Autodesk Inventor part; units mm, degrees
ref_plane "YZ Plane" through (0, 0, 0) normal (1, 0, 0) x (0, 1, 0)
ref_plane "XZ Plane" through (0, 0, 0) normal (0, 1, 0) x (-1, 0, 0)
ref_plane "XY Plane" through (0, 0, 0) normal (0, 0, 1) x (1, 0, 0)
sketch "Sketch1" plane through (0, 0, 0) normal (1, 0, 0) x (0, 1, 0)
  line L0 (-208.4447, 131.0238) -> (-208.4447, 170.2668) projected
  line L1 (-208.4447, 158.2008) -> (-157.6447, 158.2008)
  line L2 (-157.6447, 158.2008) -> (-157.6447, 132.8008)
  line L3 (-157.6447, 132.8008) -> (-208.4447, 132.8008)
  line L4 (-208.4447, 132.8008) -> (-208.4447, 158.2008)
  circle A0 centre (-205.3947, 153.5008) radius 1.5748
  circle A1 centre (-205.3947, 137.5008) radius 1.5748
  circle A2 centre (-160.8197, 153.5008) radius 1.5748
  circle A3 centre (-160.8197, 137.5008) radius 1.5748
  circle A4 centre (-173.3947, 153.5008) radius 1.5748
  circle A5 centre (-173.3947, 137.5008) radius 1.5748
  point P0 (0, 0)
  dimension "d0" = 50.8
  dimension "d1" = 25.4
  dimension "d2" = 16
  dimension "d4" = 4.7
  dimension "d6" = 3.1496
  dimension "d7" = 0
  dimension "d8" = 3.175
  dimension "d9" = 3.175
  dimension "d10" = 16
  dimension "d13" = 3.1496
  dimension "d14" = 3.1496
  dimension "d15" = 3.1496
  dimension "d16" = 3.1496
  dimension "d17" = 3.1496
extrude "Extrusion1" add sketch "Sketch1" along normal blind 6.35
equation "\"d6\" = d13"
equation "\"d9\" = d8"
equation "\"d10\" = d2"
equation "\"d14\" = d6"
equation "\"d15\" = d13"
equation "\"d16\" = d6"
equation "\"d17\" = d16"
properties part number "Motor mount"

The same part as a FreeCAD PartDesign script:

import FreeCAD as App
import Part
import Sketcher
Q = App.Units.Quantity


def add_polygon(sketch, points):
    """Adds a closed chain of lines whose ends are joined by coincident constraints."""
    first, n = sketch.GeometryCount, len(points)
    for a, b in zip(points, points[1:] + points[:1]):
        sketch.addGeometry(Part.LineSegment(App.Vector(*a, 0), App.Vector(*b, 0)), False)
    for i in range(n):
        sketch.addConstraint(Sketcher.Constraint("Coincident", first + i, 2, first + (i + 1) % n, 1))

doc = App.newDocument("Part")
body = doc.addObject("PartDesign::Body", "Body")

# Sketch on YZ plane
sketch1 = body.newObject("Sketcher::SketchObject", "Sketch")
sketch1.AttachmentSupport = (doc.getObject("YZ_Plane"), [""])
sketch1.MapMode = "FlatFace"
add_polygon(sketch1, [(-208.4447, 158.2008), (-208.4447, 132.8008), (-157.6447, 132.8008), (-157.6447, 158.2008)])  # lines 0-3
sketch1.addGeometry(Part.Circle(App.Vector(-205.3947, 137.5008, 0), App.Vector(0, 0, 1), 1.5748), False)  # 4
sketch1.addGeometry(Part.Circle(App.Vector(-173.3947, 137.5008, 0), App.Vector(0, 0, 1), 1.5748), False)  # 5
sketch1.addGeometry(Part.Circle(App.Vector(-160.8197, 137.5008, 0), App.Vector(0, 0, 1), 1.5748), False)  # 6
sketch1.addGeometry(Part.Circle(App.Vector(-205.3947, 153.5008, 0), App.Vector(0, 0, 1), 1.5748), False)  # 7
sketch1.addGeometry(Part.Circle(App.Vector(-173.3947, 153.5008, 0), App.Vector(0, 0, 1), 1.5748), False)  # 8
sketch1.addGeometry(Part.Circle(App.Vector(-160.8197, 153.5008, 0), App.Vector(0, 0, 1), 1.5748), False)  # 9
sketch1.addConstraint(Sketcher.Constraint("Vertical", 0))
sketch1.addConstraint(Sketcher.Constraint("Horizontal", 1))
sketch1.addConstraint(Sketcher.Constraint("Vertical", 2))
sketch1.addConstraint(Sketcher.Constraint("Horizontal", 3))
sketch1.addConstraint(Sketcher.Constraint("Equal", 4, 5))
sketch1.addConstraint(Sketcher.Constraint("Equal", 5, 6))
sketch1.addConstraint(Sketcher.Constraint("Equal", 6, 7))
sketch1.addConstraint(Sketcher.Constraint("Equal", 7, 8))
sketch1.addConstraint(Sketcher.Constraint("Equal", 8, 9))
sketch1.addConstraint(Sketcher.Constraint("Horizontal", 4, 3, 5, 3))
sketch1.addConstraint(Sketcher.Constraint("Horizontal", 5, 3, 6, 3))
sketch1.addConstraint(Sketcher.Constraint("Horizontal", 7, 3, 8, 3))
sketch1.addConstraint(Sketcher.Constraint("Horizontal", 8, 3, 9, 3))
sketch1.addConstraint(Sketcher.Constraint("Vertical", 4, 3, 7, 3))
sketch1.addConstraint(Sketcher.Constraint("Vertical", 5, 3, 8, 3))
sketch1.addConstraint(Sketcher.Constraint("Vertical", 6, 3, 9, 3))
sketch1.addConstraint(Sketcher.Constraint("DistanceX", 1, 1, 1, 2, Q("2 in")))
sketch1.addConstraint(Sketcher.Constraint("DistanceY", 0, 2, 0, 1, Q("1 in")))
sketch1.addConstraint(Sketcher.Constraint("Diameter", 4, Q("0.124 in")))
sketch1.addConstraint(Sketcher.Constraint("DistanceX", 6, 3, 1, 2, Q("0.125 in")))
sketch1.addConstraint(Sketcher.Constraint("DistanceY", 4, 3, 7, 3, 16.0))
sketch1.addConstraint(Sketcher.Constraint("DistanceY", 0, 2, 4, 3, 4.7))
sketch1.addConstraint(Sketcher.Constraint("DistanceX", 4, 3, -1, 1, Q("8.0864 in")))
sketch1.addConstraint(Sketcher.Constraint("DistanceY", -1, 1, 4, 3, 137.5008))
sketch1.addConstraint(Sketcher.Constraint("DistanceX", 5, 3, -1, 1, 173.3947))
sketch1.addConstraint(Sketcher.Constraint("DistanceX", 6, 3, -1, 1, 160.8197))
pad1 = body.newObject("PartDesign::Pad", "Pad")
pad1.Profile = sketch1
pad1.Length = Q("0.25 in")

doc.recompute()
